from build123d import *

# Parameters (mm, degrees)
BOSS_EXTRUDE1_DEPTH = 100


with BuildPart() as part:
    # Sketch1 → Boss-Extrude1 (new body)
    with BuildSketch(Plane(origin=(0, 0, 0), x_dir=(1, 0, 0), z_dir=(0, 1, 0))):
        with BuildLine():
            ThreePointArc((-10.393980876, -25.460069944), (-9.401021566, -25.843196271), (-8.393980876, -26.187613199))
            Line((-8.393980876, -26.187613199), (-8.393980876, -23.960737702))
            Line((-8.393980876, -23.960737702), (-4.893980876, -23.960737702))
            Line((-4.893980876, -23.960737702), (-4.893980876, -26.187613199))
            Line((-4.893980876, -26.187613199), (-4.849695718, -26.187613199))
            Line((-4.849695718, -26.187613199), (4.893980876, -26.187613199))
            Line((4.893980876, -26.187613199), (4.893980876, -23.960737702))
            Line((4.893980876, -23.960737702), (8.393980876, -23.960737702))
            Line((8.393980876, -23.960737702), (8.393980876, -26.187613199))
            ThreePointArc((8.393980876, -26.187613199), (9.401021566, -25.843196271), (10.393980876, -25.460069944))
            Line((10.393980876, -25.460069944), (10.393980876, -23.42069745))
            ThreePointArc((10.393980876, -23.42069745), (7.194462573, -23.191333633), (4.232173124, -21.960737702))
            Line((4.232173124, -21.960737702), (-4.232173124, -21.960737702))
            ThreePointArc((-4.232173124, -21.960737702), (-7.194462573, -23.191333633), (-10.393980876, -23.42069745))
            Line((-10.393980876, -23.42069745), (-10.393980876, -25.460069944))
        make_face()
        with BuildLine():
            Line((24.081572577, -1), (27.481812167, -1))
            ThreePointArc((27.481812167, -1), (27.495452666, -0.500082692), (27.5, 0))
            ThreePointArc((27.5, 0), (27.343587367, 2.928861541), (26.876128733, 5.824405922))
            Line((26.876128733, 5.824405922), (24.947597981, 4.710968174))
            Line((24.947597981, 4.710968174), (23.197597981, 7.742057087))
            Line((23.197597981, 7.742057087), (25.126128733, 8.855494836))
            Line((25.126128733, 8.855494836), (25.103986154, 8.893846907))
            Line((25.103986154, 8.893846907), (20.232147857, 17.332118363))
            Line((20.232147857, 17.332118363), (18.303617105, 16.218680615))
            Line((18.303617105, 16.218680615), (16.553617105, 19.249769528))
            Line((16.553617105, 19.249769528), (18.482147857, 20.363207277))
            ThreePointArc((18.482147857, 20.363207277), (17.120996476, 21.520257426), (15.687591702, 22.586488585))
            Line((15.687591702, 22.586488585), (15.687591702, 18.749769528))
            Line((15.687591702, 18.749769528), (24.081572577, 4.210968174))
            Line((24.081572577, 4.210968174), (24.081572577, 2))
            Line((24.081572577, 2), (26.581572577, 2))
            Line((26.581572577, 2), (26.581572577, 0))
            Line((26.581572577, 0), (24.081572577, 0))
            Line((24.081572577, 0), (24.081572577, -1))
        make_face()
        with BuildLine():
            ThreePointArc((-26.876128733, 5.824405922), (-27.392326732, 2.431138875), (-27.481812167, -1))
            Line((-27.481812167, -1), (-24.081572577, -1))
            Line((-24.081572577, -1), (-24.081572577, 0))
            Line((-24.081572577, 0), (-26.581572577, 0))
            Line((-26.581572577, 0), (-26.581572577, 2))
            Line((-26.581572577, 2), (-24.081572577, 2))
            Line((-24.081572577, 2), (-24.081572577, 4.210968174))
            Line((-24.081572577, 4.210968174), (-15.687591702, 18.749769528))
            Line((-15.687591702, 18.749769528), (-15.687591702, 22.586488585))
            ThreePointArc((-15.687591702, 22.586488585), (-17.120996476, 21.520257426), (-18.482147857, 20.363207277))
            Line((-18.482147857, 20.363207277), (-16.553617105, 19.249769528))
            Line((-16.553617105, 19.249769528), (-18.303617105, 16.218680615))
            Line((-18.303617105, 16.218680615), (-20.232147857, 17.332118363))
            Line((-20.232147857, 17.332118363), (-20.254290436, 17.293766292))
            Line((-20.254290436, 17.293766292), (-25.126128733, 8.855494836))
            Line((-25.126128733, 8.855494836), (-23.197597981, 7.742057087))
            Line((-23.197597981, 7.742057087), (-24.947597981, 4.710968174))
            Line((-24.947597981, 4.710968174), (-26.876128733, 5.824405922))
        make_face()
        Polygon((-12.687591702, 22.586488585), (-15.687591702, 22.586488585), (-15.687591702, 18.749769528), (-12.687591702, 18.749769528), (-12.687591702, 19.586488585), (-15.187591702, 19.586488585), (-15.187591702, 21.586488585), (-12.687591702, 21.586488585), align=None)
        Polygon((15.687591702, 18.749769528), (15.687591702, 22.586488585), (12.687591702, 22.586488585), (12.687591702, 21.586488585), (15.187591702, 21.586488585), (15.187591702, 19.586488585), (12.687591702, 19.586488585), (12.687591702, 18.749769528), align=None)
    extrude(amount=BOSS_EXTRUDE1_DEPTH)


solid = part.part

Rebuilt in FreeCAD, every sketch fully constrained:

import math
import FreeCAD as App
import Part
import Sketcher
from FreeCAD import Vector
Q = App.Units.Quantity

doc = App.newDocument("Part")
body = doc.addObject("PartDesign::Body", "Body")
body.AllowCompound = True

sketch1 = body.newObject("Sketcher::SketchObject", "Sketch")
sketch1.AttachmentSupport = (doc.getObject("XZ_Plane"), [""])
sketch1.MapMode = "FlatFace"
sketch1.addGeometry([
    Part.ArcOfCircle(Part.Circle(Vector(0, 0, 0), Vector(0, 0, 1), 27.5), math.radians(107.77), math.radians(112.21)),
    Part.LineSegment(Vector(-8.394, 26.188, 0), Vector(-8.394, 23.961, 0)),
    Part.LineSegment(Vector(-8.394, 23.961, 0), Vector(-4.894, 23.961, 0)),
    Part.LineSegment(Vector(-4.894, 23.961, 0), Vector(-4.894, 26.188, 0)),
    Part.LineSegment(Vector(-4.894, 26.188, 0), Vector(4.894, 26.188, 0)),
    Part.LineSegment(Vector(4.894, 26.188, 0), Vector(4.894, 23.961, 0)),
    Part.LineSegment(Vector(4.894, 23.961, 0), Vector(8.394, 23.961, 0)),
    Part.LineSegment(Vector(8.394, 23.961, 0), Vector(8.394, 26.188, 0)),
    Part.ArcOfCircle(Part.Circle(Vector(0, 0, 0), Vector(0, 0, 1), 27.5), math.radians(67.79), math.radians(72.23)),
    Part.LineSegment(Vector(10.394, 25.46, 0), Vector(10.394, 23.421, 0)),
    Part.ArcOfCircle(Part.Circle(Vector(9.5, 13.461, 0), Vector(0, 0, 1), 10), math.radians(85), math.radians(122)),
    Part.LineSegment(Vector(4.232, 21.961, 0), Vector(-4.232, 21.961, 0)),
    Part.ArcOfCircle(Part.Circle(Vector(-9.5, 13.461, 0), Vector(0, 0, 1), 10), math.radians(58), math.radians(95)),
    Part.LineSegment(Vector(-10.394, 23.421, 0), Vector(-10.394, 25.46, 0)),
    Part.LineSegment(Vector(24.082, 1, 0), Vector(27.482, 1, 0)),
    Part.ArcOfCircle(Part.Circle(Vector(0, 0, 0), Vector(0, 0, 1), 27.5), math.radians(0), math.radians(2.08)),
    Part.ArcOfCircle(Part.Circle(Vector(0, 0, 0), Vector(0, 0, 1), 27.5), math.radians(-12.23), math.radians(0)),
    Part.LineSegment(Vector(26.876, -5.824, 0), Vector(24.948, -4.711, 0)),
    Part.LineSegment(Vector(24.948, -4.711, 0), Vector(23.198, -7.742, 0)),
    Part.LineSegment(Vector(23.198, -7.742, 0), Vector(25.126, -8.855, 0)),
    Part.LineSegment(Vector(25.126, -8.855, 0), Vector(25.104, -8.894, 0)),
    Part.LineSegment(Vector(25.104, -8.894, 0), Vector(20.232, -17.332, 0)),
    Part.LineSegment(Vector(20.232, -17.332, 0), Vector(18.304, -16.219, 0)),
    Part.LineSegment(Vector(18.304, -16.219, 0), Vector(16.554, -19.25, 0)),
    Part.LineSegment(Vector(16.554, -19.25, 0), Vector(18.482, -20.363, 0)),
    Part.ArcOfCircle(Part.Circle(Vector(0, 0, 0), Vector(0, 0, 1), 27.5), math.radians(-55.22), math.radians(-47.77)),
    Part.LineSegment(Vector(15.688, -22.586, 0), Vector(12.688, -22.586, 0)),
    Part.LineSegment(Vector(12.688, -22.586, 0), Vector(12.688, -21.586, 0)),
    Part.LineSegment(Vector(12.688, -21.586, 0), Vector(15.188, -21.586, 0)),
    Part.LineSegment(Vector(15.188, -21.586, 0), Vector(15.188, -19.586, 0)),
    Part.LineSegment(Vector(15.188, -19.586, 0), Vector(12.688, -19.586, 0)),
    Part.LineSegment(Vector(12.688, -19.586, 0), Vector(12.688, -18.75, 0)),
    Part.LineSegment(Vector(12.688, -18.75, 0), Vector(15.688, -18.75, 0)),
    Part.LineSegment(Vector(15.688, -18.75, 0), Vector(24.082, -4.211, 0)),
    Part.LineSegment(Vector(24.082, -4.211, 0), Vector(24.082, -2, 0)),
    Part.LineSegment(Vector(24.082, -2, 0), Vector(26.582, -2, 0)),
    Part.LineSegment(Vector(26.582, -2, 0), Vector(26.582, 0, 0)),
    Part.LineSegment(Vector(26.582, 0, 0), Vector(24.082, 0, 0)),
    Part.LineSegment(Vector(24.082, 0, 0), Vector(24.082, 1, 0)),
    Part.ArcOfCircle(Part.Circle(Vector(0, 0, 0), Vector(0, 0, 1), 27.5), math.radians(177.92), math.radians(192.23)),
    Part.LineSegment(Vector(-27.482, 1, 0), Vector(-24.082, 1, 0)),
    Part.LineSegment(Vector(-24.082, 1, 0), Vector(-24.082, 0, 0)),
    Part.LineSegment(Vector(-24.082, 0, 0), Vector(-26.582, 0, 0)),
    Part.LineSegment(Vector(-26.582, 0, 0), Vector(-26.582, -2, 0)),
    Part.LineSegment(Vector(-26.582, -2, 0), Vector(-24.082, -2, 0)),
    Part.LineSegment(Vector(-24.082, -2, 0), Vector(-24.082, -4.211, 0)),
    Part.LineSegment(Vector(-24.082, -4.211, 0), Vector(-15.688, -18.75, 0)),
    Part.LineSegment(Vector(-15.688, -18.75, 0), Vector(-12.688, -18.75, 0)),
    Part.LineSegment(Vector(-12.688, -18.75, 0), Vector(-12.688, -19.586, 0)),
    Part.LineSegment(Vector(-12.688, -19.586, 0), Vector(-15.188, -19.586, 0)),
    Part.LineSegment(Vector(-15.188, -19.586, 0), Vector(-15.188, -21.586, 0)),
    Part.LineSegment(Vector(-15.188, -21.586, 0), Vector(-12.688, -21.586, 0)),
    Part.LineSegment(Vector(-12.688, -21.586, 0), Vector(-12.688, -22.586, 0)),
    Part.LineSegment(Vector(-12.688, -22.586, 0), Vector(-15.688, -22.586, 0)),
    Part.ArcOfCircle(Part.Circle(Vector(0, 0, 0), Vector(0, 0, 1), 27.5), math.radians(-132.23), math.radians(-124.78)),
    Part.LineSegment(Vector(-18.482, -20.363, 0), Vector(-16.554, -19.25, 0)),
    Part.LineSegment(Vector(-16.554, -19.25, 0), Vector(-18.304, -16.219, 0)),
    Part.LineSegment(Vector(-18.304, -16.219, 0), Vector(-20.232, -17.332, 0)),
    Part.LineSegment(Vector(-20.232, -17.332, 0), Vector(-20.254, -17.294, 0)),
    Part.LineSegment(Vector(-20.254, -17.294, 0), Vector(-25.126, -8.855, 0)),
    Part.LineSegment(Vector(-25.126, -8.855, 0), Vector(-23.198, -7.742, 0)),
    Part.LineSegment(Vector(-23.198, -7.742, 0), Vector(-24.948, -4.711, 0)),
    Part.LineSegment(Vector(-24.948, -4.711, 0), Vector(-26.876, -5.824, 0)),
], False)
sketch1.addConstraint([
    Sketcher.Constraint("Coincident", 0, 1, 1, 1),
    Sketcher.Constraint("Coincident", 1, 2, 2, 1),
    Sketcher.Constraint("Coincident", 2, 2, 3, 1),
    Sketcher.Constraint("Coincident", 3, 2, 4, 1),
    Sketcher.Constraint("Coincident", 4, 2, 5, 1),
    Sketcher.Constraint("Coincident", 5, 2, 6, 1),
    Sketcher.Constraint("Coincident", 6, 2, 7, 1),
    Sketcher.Constraint("Coincident", 7, 2, 8, 2),
    Sketcher.Constraint("Coincident", 8, 1, 9, 1),
    Sketcher.Constraint("Coincident", 9, 2, 10, 1),
    Sketcher.Constraint("Coincident", 10, 2, 11, 1),
    Sketcher.Constraint("Coincident", 11, 2, 12, 1),
    Sketcher.Constraint("Coincident", 12, 2, 13, 1),
    Sketcher.Constraint("Coincident", 13, 2, 0, 2),
    Sketcher.Constraint("Coincident", 14, 2, 15, 2),
    Sketcher.Constraint("Tangent", 15, 1, 16, 2),
    Sketcher.Constraint("Coincident", 16, 1, 17, 1),
    Sketcher.Constraint("Coincident", 17, 2, 18, 1),
    Sketcher.Constraint("Coincident", 18, 2, 19, 1),
    Sketcher.Constraint("Coincident", 19, 2, 20, 1),
    Sketcher.Constraint("Coincident", 20, 2, 21, 1),
    Sketcher.Constraint("Coincident", 21, 2, 22, 1),
    Sketcher.Constraint("Coincident", 22, 2, 23, 1),
    Sketcher.Constraint("Coincident", 23, 2, 24, 1),
    Sketcher.Constraint("Coincident", 24, 2, 25, 2),
    Sketcher.Constraint("Coincident", 25, 1, 26, 1),
    Sketcher.Constraint("Coincident", 26, 2, 27, 1),
    Sketcher.Constraint("Coincident", 27, 2, 28, 1),
    Sketcher.Constraint("Coincident", 28, 2, 29, 1),
    Sketcher.Constraint("Coincident", 29, 2, 30, 1),
    Sketcher.Constraint("Coincident", 30, 2, 31, 1),
    Sketcher.Constraint("Coincident", 31, 2, 32, 1),
    Sketcher.Constraint("Coincident", 32, 2, 33, 1),
    Sketcher.Constraint("Coincident", 33, 2, 34, 1),
    Sketcher.Constraint("Coincident", 34, 2, 35, 1),
    Sketcher.Constraint("Coincident", 35, 2, 36, 1),
    Sketcher.Constraint("Coincident", 36, 2, 37, 1),
    Sketcher.Constraint("Coincident", 37, 2, 38, 1),
    Sketcher.Constraint("Coincident", 38, 2, 14, 1),
    Sketcher.Constraint("Coincident", 39, 1, 40, 1),
    Sketcher.Constraint("Coincident", 40, 2, 41, 1),
    Sketcher.Constraint("Coincident", 41, 2, 42, 1),
    Sketcher.Constraint("Coincident", 42, 2, 43, 1),
    Sketcher.Constraint("Coincident", 43, 2, 44, 1),
    Sketcher.Constraint("Coincident", 44, 2, 45, 1),
    Sketcher.Constraint("Coincident", 45, 2, 46, 1),
    Sketcher.Constraint("Coincident", 46, 2, 47, 1),
    Sketcher.Constraint("Coincident", 47, 2, 48, 1),
    Sketcher.Constraint("Coincident", 48, 2, 49, 1),
    Sketcher.Constraint("Coincident", 49, 2, 50, 1),
    Sketcher.Constraint("Coincident", 50, 2, 51, 1),
    Sketcher.Constraint("Coincident", 51, 2, 52, 1),
    Sketcher.Constraint("Coincident", 52, 2, 53, 1),
    Sketcher.Constraint("Coincident", 53, 2, 54, 2),
    Sketcher.Constraint("Coincident", 54, 1, 55, 1),
    Sketcher.Constraint("Coincident", 55, 2, 56, 1),
    Sketcher.Constraint("Coincident", 56, 2, 57, 1),
    Sketcher.Constraint("Coincident", 57, 2, 58, 1),
    Sketcher.Constraint("Coincident", 58, 2, 59, 1),
    Sketcher.Constraint("Coincident", 59, 2, 60, 1),
    Sketcher.Constraint("Coincident", 60, 2, 61, 1),
    Sketcher.Constraint("Coincident", 61, 2, 62, 1),
    Sketcher.Constraint("Coincident", 62, 2, 39, 2),
    Sketcher.Constraint("Vertical", 1),
    Sketcher.Constraint("Horizontal", 2),
    Sketcher.Constraint("Vertical", 3),
    Sketcher.Constraint("Horizontal", 4),
    Sketcher.Constraint("Vertical", 5),
    Sketcher.Constraint("Horizontal", 6),
    Sketcher.Constraint("Vertical", 7),
    Sketcher.Constraint("Vertical", 9),
    Sketcher.Constraint("Horizontal", 11),
    Sketcher.Constraint("Vertical", 13),
    Sketcher.Constraint("Horizontal", 14),
    Sketcher.Constraint("Horizontal", 26),
    Sketcher.Constraint("Vertical", 27),
    Sketcher.Constraint("Horizontal", 28),
    Sketcher.Constraint("Vertical", 29),
    Sketcher.Constraint("Horizontal", 30),
    Sketcher.Constraint("Vertical", 31),
    Sketcher.Constraint("Horizontal", 32),
    Sketcher.Constraint("Vertical", 34),
    Sketcher.Constraint("Horizontal", 35),
    Sketcher.Constraint("Vertical", 36),
    Sketcher.Constraint("Horizontal", 37),
    Sketcher.Constraint("Vertical", 38),
    Sketcher.Constraint("Horizontal", 40),
    Sketcher.Constraint("Vertical", 41),
    Sketcher.Constraint("Horizontal", 42),
    Sketcher.Constraint("Vertical", 43),
    Sketcher.Constraint("Horizontal", 44),
    Sketcher.Constraint("Vertical", 45),
    Sketcher.Constraint("Horizontal", 47),
    Sketcher.Constraint("Vertical", 48),
    Sketcher.Constraint("Horizontal", 49),
    Sketcher.Constraint("Vertical", 50),
    Sketcher.Constraint("Horizontal", 51),
    Sketcher.Constraint("Vertical", 52),
    Sketcher.Constraint("Horizontal", 53),
    Sketcher.Constraint("Coincident", 0, 3, -1, 1),
    Sketcher.Constraint("Coincident", 8, 3, -1, 1),
    Sketcher.Constraint("Coincident", 15, 3, -1, 1),
    Sketcher.Constraint("Coincident", 25, 3, -1, 1),
    Sketcher.Constraint("Coincident", 39, 3, -1, 1),
    Sketcher.Constraint("Coincident", 54, 3, -1, 1),
    Sketcher.Constraint("Equal", 0, 8),
    Sketcher.Constraint("Equal", 10, 12),
    Sketcher.Constraint("Equal", 15, 16),
    Sketcher.Constraint("Equal", 16, 25),
    Sketcher.Constraint("Equal", 25, 39),
    Sketcher.Constraint("Equal", 39, 54),
    Sketcher.Constraint("Symmetric", 37, 2, 41, 2, -1, 1),
    Sketcher.Constraint("Symmetric", 10, 3, 12, 3, -2),
    Sketcher.Constraint("Symmetric", 2, 2, 5, 2, -2),
    Sketcher.Constraint("Symmetric", 36, 2, 42, 2, -2),
    Sketcher.Constraint("Symmetric", 34, 2, 44, 2, -2),
    Sketcher.Constraint("Symmetric", 32, 2, 46, 2, -2),
    Sketcher.Constraint("Symmetric", 30, 2, 48, 2, -2),
    Sketcher.Constraint("Symmetric", 28, 2, 50, 2, -2),
    Sketcher.Constraint("Symmetric", 26, 2, 52, 2, -2),
    Sketcher.Constraint("Symmetric", 23, 2, 55, 2, -2),
    Sketcher.Constraint("Symmetric", 22, 2, 56, 2, -2),
    Sketcher.Constraint("Symmetric", 21, 2, 57, 2, -2),
    Sketcher.Constraint("Symmetric", 19, 2, 59, 2, -2),
    Sketcher.Constraint("Symmetric", 18, 2, 60, 2, -2),
    Sketcher.Constraint("Symmetric", 17, 2, 61, 2, -2),
    Sketcher.Constraint("PointOnObject", 15, 1, -1),
    Sketcher.Constraint("Perpendicular", 17, 18),
    Sketcher.Constraint("Perpendicular", 18, 19),
    Sketcher.Constraint("Perpendicular", 19, 20),
    Sketcher.Constraint("Parallel", 20, 21),
    Sketcher.Constraint("Perpendicular", 21, 22),
    Sketcher.Constraint("Perpendicular", 22, 23),
    Sketcher.Constraint("Perpendicular", 23, 24),
    Sketcher.Constraint("Perpendicular", 24, 33),
    Sketcher.Constraint("Perpendicular", 46, 55),
    Sketcher.Constraint("Perpendicular", 55, 56),
    Sketcher.Constraint("Perpendicular", 57, 58),
    Sketcher.Constraint("Perpendicular", 61, 62),
    Sketcher.Constraint("Horizontal", 0, 1, 3, 2),
    Sketcher.Constraint("Horizontal", 4, 2, 7, 2),
    Sketcher.Constraint("Horizontal", 9, 2, 12, 2),
    Sketcher.Constraint("Horizontal", 38, 2, 39, 1),
    Sketcher.Constraint("Vertical", 27, 2, 30, 2),
    Sketcher.Constraint("Vertical", 25, 1, 32, 2),
    Sketcher.Constraint("Vertical", 34, 2, 37, 2),
    Sketcher.Constraint("Equal", 30, 35),
    Sketcher.Constraint("Equal", 29, 36),
    Sketcher.Constraint("Equal", 27, 38),
    Sketcher.Constraint("Equal", 17, 19),
    Sketcher.Constraint("Equal", 19, 22),
    Sketcher.Constraint("Equal", 18, 23),
    Sketcher.Constraint("Equal", 22, 24),
    Sketcher.Constraint("Equal", 20, 58),
    Sketcher.Constraint("Radius", 10, Q("10 mm")),
    Sketcher.Constraint("Radius", 0, Q("27.5 mm")),
    Sketcher.Constraint("Radius", 15, Q("27.499998 mm")),
    Sketcher.Constraint("DistanceX", 26, 2, 26, 1, Q("3 mm")),
    Sketcher.Constraint("DistanceY", 27, 1, 27, 2, Q("1 mm")),
    Sketcher.Constraint("DistanceY", 29, 1, 29, 2, Q("2 mm")),
    Sketcher.Constraint("Angle", 17, Q("150 deg")),
    Sketcher.Constraint("DistanceX", 2, 1, 2, 2, Q("3.5 mm")),
    Sketcher.Constraint("DistanceX", 28, 1, 28, 2, Q("2.5 mm")),
    Sketcher.Constraint("Distance", 18, Q("3.5 mm")),
    Sketcher.Constraint("DistanceX", -1, 1, 10, 3, Q("9.5 mm")),
    Sketcher.Constraint("DistanceX", 4, 1, 4, 2, Q("9.787962 mm")),
    Sketcher.Constraint("DistanceX", 14, 1, 14, 2, Q("3.40024 mm")),
    Sketcher.Constraint("DistanceY", 31, 1, 31, 2, Q("0.836719 mm")),
    Sketcher.Constraint("DistanceY", 34, 1, 34, 2, Q("2.210968 mm")),
    Sketcher.Constraint("DistanceX", 11, 2, 11, 1, Q("8.464346 mm")),
    Sketcher.Constraint("DistanceY", 1, 2, 1, 1, Q("2.226875 mm")),
    Sketcher.Constraint("DistanceY", 9, 2, 9, 1, Q("2.039372 mm")),
    Sketcher.Constraint("DistanceX", -1, 1, 8, 1, Q("10.393981 mm")),
    Sketcher.Constraint("DistanceX", -1, 1, 16, 1, Q("26.876129 mm")),
    Sketcher.Constraint("DistanceY", 17, 2, -1, 1, Q("4.710968 mm")),
    Sketcher.Constraint("DistanceX", 58, 2, -1, 1, Q("20.25429 mm")),
])
pad1 = body.newObject("PartDesign::Pad", "Pad")
pad1.Profile = sketch1
pad1.Length = 100
pad1.Reversed = True

doc.recompute()
